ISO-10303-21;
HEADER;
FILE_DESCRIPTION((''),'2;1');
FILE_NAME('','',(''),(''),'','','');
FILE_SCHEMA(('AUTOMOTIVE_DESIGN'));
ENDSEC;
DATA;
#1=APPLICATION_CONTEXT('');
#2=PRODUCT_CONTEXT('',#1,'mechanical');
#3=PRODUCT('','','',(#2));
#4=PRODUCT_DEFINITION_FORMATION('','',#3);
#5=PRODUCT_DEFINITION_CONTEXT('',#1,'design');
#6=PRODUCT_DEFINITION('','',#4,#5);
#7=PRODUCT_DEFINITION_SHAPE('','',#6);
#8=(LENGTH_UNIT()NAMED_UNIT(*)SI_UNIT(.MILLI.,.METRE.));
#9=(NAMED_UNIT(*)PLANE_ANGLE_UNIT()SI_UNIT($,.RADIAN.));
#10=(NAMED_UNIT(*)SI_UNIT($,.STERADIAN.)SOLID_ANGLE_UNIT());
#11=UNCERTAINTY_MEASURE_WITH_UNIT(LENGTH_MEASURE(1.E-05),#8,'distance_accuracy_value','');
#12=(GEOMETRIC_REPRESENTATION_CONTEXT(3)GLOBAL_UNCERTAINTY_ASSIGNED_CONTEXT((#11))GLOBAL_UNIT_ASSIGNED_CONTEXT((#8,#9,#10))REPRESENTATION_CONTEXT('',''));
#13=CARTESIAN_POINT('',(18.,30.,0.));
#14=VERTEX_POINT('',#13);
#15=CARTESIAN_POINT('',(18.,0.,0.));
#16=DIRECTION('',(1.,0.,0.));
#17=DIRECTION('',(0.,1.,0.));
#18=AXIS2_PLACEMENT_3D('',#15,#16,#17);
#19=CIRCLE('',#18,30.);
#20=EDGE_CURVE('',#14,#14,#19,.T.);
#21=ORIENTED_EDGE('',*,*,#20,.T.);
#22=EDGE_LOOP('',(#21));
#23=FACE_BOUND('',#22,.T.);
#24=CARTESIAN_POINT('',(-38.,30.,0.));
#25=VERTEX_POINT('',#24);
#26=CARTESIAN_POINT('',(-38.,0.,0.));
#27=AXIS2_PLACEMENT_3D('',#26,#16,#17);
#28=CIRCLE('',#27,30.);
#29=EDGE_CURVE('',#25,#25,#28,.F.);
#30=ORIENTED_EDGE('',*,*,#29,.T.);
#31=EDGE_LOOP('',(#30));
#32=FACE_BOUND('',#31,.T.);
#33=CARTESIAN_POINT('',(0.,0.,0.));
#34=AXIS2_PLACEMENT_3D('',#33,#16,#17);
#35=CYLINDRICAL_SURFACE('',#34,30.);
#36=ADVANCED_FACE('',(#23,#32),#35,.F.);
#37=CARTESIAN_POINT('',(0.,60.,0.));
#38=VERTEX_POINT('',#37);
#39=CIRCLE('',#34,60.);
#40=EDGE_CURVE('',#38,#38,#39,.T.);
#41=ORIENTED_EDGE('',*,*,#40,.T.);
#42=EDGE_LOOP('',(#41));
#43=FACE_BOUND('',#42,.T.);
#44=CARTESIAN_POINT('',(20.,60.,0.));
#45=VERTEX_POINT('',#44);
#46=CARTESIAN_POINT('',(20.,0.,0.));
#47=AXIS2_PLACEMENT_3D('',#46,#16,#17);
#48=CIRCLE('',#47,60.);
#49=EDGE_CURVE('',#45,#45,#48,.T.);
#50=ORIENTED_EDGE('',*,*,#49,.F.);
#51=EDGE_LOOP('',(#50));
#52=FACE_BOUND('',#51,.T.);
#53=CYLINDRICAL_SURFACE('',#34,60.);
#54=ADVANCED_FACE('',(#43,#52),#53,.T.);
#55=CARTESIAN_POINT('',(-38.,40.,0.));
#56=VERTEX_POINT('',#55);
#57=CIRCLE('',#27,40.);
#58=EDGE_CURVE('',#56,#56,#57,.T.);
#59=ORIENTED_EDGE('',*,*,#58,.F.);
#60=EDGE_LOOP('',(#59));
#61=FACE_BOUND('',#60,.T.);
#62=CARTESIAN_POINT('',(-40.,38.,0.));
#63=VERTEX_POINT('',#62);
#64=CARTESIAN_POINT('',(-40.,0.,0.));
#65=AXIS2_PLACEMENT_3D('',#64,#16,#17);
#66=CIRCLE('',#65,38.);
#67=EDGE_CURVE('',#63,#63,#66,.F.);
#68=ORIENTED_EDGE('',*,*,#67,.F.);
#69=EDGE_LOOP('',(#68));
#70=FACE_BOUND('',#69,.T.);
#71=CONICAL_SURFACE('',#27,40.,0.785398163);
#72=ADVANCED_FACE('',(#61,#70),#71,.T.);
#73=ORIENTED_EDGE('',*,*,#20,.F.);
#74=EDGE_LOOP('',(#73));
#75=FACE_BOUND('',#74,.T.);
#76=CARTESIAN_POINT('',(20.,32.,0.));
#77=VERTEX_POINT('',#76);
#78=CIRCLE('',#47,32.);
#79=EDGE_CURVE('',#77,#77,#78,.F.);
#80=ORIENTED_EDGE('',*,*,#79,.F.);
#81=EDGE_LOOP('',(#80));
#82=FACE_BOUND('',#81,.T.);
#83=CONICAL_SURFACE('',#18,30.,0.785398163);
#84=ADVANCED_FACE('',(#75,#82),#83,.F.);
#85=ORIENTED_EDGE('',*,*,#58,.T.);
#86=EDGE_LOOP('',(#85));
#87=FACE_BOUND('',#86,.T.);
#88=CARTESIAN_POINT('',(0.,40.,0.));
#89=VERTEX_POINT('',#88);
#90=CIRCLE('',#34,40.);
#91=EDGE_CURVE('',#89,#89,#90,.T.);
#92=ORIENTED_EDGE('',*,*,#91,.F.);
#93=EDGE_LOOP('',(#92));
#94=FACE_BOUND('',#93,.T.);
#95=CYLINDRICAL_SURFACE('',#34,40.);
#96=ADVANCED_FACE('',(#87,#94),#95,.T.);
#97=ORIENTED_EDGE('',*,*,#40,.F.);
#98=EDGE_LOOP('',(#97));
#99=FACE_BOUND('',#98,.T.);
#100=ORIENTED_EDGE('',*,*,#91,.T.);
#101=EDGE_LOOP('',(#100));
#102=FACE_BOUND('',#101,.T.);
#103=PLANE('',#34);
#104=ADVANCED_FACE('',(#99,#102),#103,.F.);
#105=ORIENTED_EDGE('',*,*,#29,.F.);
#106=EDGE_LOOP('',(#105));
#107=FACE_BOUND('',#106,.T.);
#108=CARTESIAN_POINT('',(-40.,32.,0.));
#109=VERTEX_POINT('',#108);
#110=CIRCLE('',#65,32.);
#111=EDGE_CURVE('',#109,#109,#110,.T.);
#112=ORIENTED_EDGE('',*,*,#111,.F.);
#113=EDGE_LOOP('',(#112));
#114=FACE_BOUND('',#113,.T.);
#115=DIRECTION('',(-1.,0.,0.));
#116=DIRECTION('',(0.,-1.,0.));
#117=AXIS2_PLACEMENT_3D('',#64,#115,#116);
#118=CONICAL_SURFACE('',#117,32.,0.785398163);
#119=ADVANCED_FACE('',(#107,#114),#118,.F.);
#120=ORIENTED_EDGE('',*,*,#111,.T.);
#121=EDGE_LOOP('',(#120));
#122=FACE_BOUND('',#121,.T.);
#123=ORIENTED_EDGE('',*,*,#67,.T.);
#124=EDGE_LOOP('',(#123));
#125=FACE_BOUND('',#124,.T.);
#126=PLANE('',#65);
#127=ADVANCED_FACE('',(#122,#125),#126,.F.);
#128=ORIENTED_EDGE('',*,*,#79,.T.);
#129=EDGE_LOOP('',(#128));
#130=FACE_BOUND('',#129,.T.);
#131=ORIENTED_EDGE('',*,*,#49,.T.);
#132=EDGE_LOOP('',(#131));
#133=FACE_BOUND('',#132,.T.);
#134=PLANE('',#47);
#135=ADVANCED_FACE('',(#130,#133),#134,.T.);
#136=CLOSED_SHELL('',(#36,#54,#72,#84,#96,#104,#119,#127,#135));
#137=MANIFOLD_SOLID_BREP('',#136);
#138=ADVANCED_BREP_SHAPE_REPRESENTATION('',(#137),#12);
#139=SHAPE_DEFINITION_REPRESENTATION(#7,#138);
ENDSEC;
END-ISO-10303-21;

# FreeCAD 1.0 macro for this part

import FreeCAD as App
import Part
import Sketcher
from FreeCAD import Vector


def edges_at(feature, points):
    """Names of the edges that pass closest to the given points."""
    edges = feature.Shape.Edges
    near = lambda p: min(range(len(edges)), key=lambda i: edges[i].distToShape(Part.Vertex(*p))[0])
    return sorted({f"Edge{near(p) + 1}" for p in points})

doc = App.newDocument("Part")
params = doc.addObject("Spreadsheet::Sheet", "Params")
for row, (alias, value) in enumerate([
    ("sketch1_width", "60 mm"),
    ("sketch1_width2", "20 mm"),
    ("sketch1_height", "10 mm"),
    ("revolution_angle", "360 deg"),
    ("chamfer_size", "2 mm"),
], start=1):
    params.set(f"A{row}", alias)
    params.set(f"B{row}", "=" + value)
    params.setAlias(f"B{row}", alias)

body = doc.addObject("PartDesign::Body", "Body")

# Sketch on XY plane
sketch1 = body.newObject("Sketcher::SketchObject", "Sketch")
sketch1.AttachmentSupport = (doc.getObject("XY_Plane"), [""])
sketch1.MapMode = "FlatFace"
sketch1.addGeometry([
    Part.LineSegment(Vector(-40, 40, 0), Vector(-40, 30, 0)),  # 0
    Part.LineSegment(Vector(-40, 30, 0), Vector(20, 30, 0)),  # 1
    Part.LineSegment(Vector(20, 30, 0), Vector(20, 60, 0)),  # 2
    Part.LineSegment(Vector(20, 60, 0), Vector(0, 60, 0)),  # 3
    Part.LineSegment(Vector(0, 60, 0), Vector(0, 40, 0)),  # 4
    Part.LineSegment(Vector(0, 40, 0), Vector(-40, 40, 0)),  # 5
], False)
sketch1.addConstraint([
    Sketcher.Constraint("Coincident", 0, 2, 1, 1),
    Sketcher.Constraint("Coincident", 1, 2, 2, 1),
    Sketcher.Constraint("Coincident", 2, 2, 3, 1),
    Sketcher.Constraint("Coincident", 3, 2, 4, 1),
    Sketcher.Constraint("Coincident", 4, 2, 5, 1),
    Sketcher.Constraint("Coincident", 5, 2, 0, 1),
    Sketcher.Constraint("Vertical", 0),
    Sketcher.Constraint("Horizontal", 1),
    Sketcher.Constraint("Vertical", 2),
    Sketcher.Constraint("Horizontal", 3),
    Sketcher.Constraint("Vertical", 4),
    Sketcher.Constraint("Horizontal", 5),
    Sketcher.Constraint("PointOnObject", 3, 2, -2),
    Sketcher.Constraint("Equal", 3, 4),
    Sketcher.Constraint("DistanceX", 1, 1, 1, 2, 60.0),
    Sketcher.Constraint("DistanceX", 3, 2, 3, 1, 20.0),
    Sketcher.Constraint("DistanceY", 0, 2, 0, 1, 10.0),
    Sketcher.Constraint("DistanceY", -1, 1, 0, 2, 30.0),
])
sketch1.setExpression("Constraints[14]", "Params.sketch1_width")
sketch1.setExpression("Constraints[15]", "Params.sketch1_width2")
sketch1.setExpression("Constraints[16]", "Params.sketch1_height")
revolution = body.newObject("PartDesign::Revolution", "Revolution")
revolution.Profile = sketch1
revolution.ReferenceAxis = (sketch1, ["H_Axis"])
revolution.setExpression("Angle", "Params.revolution_angle")
doc.recompute()

chamfer = body.newObject("PartDesign::Chamfer", "Chamfer")
chamfer.Base = (revolution, edges_at(revolution, [(-40, -40, 0), (20, -30, 0), (-40, -30, 0)]))
chamfer.setExpression("Size", "Params.chamfer_size")

doc.recompute()
